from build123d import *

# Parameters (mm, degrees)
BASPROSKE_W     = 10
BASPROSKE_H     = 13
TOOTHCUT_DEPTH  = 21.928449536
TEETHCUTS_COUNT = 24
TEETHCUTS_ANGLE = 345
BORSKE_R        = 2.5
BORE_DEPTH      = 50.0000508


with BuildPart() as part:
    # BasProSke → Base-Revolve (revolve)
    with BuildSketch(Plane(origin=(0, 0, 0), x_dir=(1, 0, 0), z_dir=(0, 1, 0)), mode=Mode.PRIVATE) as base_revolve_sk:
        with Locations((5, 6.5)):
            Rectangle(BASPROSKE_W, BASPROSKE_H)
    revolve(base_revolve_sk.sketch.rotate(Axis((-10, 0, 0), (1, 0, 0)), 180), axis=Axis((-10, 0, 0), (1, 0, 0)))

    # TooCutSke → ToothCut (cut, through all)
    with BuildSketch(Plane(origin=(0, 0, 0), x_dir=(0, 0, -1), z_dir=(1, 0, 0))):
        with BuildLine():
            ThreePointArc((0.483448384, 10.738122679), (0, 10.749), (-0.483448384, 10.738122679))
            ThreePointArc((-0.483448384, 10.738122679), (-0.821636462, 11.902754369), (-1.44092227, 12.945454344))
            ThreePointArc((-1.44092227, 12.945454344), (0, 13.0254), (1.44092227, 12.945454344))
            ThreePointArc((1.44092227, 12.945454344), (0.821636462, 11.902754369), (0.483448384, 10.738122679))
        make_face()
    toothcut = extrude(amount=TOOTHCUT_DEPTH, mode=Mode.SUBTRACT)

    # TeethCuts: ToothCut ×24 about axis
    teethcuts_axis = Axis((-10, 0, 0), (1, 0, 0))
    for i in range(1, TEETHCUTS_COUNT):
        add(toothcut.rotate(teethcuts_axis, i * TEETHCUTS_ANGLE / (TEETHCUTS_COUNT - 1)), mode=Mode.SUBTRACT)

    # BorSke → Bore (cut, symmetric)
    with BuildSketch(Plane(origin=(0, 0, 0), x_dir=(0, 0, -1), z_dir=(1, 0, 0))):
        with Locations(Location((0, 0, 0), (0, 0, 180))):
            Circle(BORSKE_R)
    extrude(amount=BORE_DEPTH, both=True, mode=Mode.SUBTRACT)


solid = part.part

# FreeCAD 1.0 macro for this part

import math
import FreeCAD as App
import Part
import Sketcher

V = App.Vector
Q = App.Units.Quantity

doc = App.newDocument("Part")
body = doc.addObject("PartDesign::Body", "Body")

# Sketch on XZ plane
sketch1 = body.newObject("Sketcher::SketchObject", "Sketch")
sketch1.AttachmentSupport = (doc.getObject("XZ_Plane"), [""])
sketch1.MapMode = "FlatFace"
sketch1.addGeometry([
    Part.LineSegment(V(0, -13, 0), V(0, 0, 0)),
    Part.LineSegment(V(0, 0, 0), V(10, 0, 0)),
    Part.LineSegment(V(10, 0, 0), V(10, -13, 0)),
    Part.LineSegment(V(10, -13, 0), V(0, -13, 0)),
], False)
sketch1.addConstraint([
    Sketcher.Constraint("Coincident", 0, 2, 1, 1),
    Sketcher.Constraint("Coincident", 1, 2, 2, 1),
    Sketcher.Constraint("Coincident", 2, 2, 3, 1),
    Sketcher.Constraint("Coincident", 3, 2, 0, 1),
    Sketcher.Constraint("Vertical", 0),
    Sketcher.Constraint("Horizontal", 1),
    Sketcher.Constraint("Vertical", 2),
    Sketcher.Constraint("Horizontal", 3),
    Sketcher.Constraint("Coincident", 0, 2, -1, 1),
    Sketcher.Constraint("DistanceX", 1, 1, 1, 2, Q("10 mm")),
    Sketcher.Constraint("DistanceY", 0, 1, 0, 2, Q("13 mm")),
])
revolution = body.newObject("PartDesign::Revolution", "Revolution")
revolution.Profile = sketch1
revolution.ReferenceAxis = (sketch1, ["H_Axis"])
revolution.Angle = 360

# Sketch on YZ plane
sketch2 = body.newObject("Sketcher::SketchObject", "Sketch001")
sketch2.AttachmentSupport = (doc.getObject("YZ_Plane"), [""])
sketch2.MapMode = "FlatFace"
sketch2.addGeometry([
    Part.ArcOfCircle(Part.Circle(V(0, 0, 0), V(0, 0, 1), 10.7), math.radians(-2.58), math.radians(2.58)),
    Part.ArcOfCircle(Part.Circle(V(10, -5.2, 0), V(0, 0, 1), 4.8), math.radians(52), math.radians(81)),
    Part.ArcOfCircle(Part.Circle(V(0, 0, 0), V(0, 0, 1), 13), math.radians(-6.35), math.radians(6.35)),
    Part.ArcOfCircle(Part.Circle(V(10, 5.2, 0), V(0, 0, 1), 4.8), math.radians(-81), math.radians(-52)),
], False)
sketch2.addConstraint([
    Sketcher.Constraint("Coincident", 0, 1, 1, 2),
    Sketcher.Constraint("Coincident", 1, 1, 2, 1),
    Sketcher.Constraint("Coincident", 2, 2, 3, 2),
    Sketcher.Constraint("Coincident", 3, 1, 0, 2),
    Sketcher.Constraint("Coincident", 0, 3, -1, 1),
    Sketcher.Constraint("Coincident", 2, 3, -1, 1),
    Sketcher.Constraint("Equal", 1, 3),
    Sketcher.Constraint("Symmetric", 1, 3, 3, 3, -1),
    Sketcher.Constraint("Radius", 1, Q("4.8 mm")),
    Sketcher.Constraint("Radius", 0, Q("10.749 mm")),
    Sketcher.Constraint("Radius", 2, Q("13.0254 mm")),
    Sketcher.Constraint("DistanceY", 1, 3, -1, 1, Q("5.225202 mm")),
    Sketcher.Constraint("DistanceX", -1, 1, 1, 3, Q("9.992621 mm")),
])
pocket1 = body.newObject("PartDesign::Pocket", "Pocket")
pocket1.Profile = sketch2
pocket1.Type = "ThroughAll"
pocket1.Reversed = True
doc.recompute()

polarpattern = body.newObject("PartDesign::PolarPattern", "PolarPattern")
polarpattern.Originals = [pocket1]
polarpattern.Axis = (doc.getObject("X_Axis"), [""])
polarpattern.Angle = 360
polarpattern.Occurrences = 24
body.Tip = polarpattern

# Sketch on YZ plane
sketch3 = body.newObject("Sketcher::SketchObject", "Sketch002")
sketch3.AttachmentSupport = (doc.getObject("YZ_Plane"), [""])
sketch3.MapMode = "FlatFace"
sketch3.addGeometry(Part.Circle(V(0, 0, 0), V(0, 0, 1), 2.5), False)
sketch3.addConstraint([
    Sketcher.Constraint("Coincident", 0, 3, -1, 1),
    Sketcher.Constraint("Diameter", 0, Q("5 mm")),
])
pocket2 = body.newObject("PartDesign::Pocket", "Pocket001")
pocket2.Profile = sketch3
pocket2.Length = 100.000102
pocket2.Midplane = True

doc.recompute()
